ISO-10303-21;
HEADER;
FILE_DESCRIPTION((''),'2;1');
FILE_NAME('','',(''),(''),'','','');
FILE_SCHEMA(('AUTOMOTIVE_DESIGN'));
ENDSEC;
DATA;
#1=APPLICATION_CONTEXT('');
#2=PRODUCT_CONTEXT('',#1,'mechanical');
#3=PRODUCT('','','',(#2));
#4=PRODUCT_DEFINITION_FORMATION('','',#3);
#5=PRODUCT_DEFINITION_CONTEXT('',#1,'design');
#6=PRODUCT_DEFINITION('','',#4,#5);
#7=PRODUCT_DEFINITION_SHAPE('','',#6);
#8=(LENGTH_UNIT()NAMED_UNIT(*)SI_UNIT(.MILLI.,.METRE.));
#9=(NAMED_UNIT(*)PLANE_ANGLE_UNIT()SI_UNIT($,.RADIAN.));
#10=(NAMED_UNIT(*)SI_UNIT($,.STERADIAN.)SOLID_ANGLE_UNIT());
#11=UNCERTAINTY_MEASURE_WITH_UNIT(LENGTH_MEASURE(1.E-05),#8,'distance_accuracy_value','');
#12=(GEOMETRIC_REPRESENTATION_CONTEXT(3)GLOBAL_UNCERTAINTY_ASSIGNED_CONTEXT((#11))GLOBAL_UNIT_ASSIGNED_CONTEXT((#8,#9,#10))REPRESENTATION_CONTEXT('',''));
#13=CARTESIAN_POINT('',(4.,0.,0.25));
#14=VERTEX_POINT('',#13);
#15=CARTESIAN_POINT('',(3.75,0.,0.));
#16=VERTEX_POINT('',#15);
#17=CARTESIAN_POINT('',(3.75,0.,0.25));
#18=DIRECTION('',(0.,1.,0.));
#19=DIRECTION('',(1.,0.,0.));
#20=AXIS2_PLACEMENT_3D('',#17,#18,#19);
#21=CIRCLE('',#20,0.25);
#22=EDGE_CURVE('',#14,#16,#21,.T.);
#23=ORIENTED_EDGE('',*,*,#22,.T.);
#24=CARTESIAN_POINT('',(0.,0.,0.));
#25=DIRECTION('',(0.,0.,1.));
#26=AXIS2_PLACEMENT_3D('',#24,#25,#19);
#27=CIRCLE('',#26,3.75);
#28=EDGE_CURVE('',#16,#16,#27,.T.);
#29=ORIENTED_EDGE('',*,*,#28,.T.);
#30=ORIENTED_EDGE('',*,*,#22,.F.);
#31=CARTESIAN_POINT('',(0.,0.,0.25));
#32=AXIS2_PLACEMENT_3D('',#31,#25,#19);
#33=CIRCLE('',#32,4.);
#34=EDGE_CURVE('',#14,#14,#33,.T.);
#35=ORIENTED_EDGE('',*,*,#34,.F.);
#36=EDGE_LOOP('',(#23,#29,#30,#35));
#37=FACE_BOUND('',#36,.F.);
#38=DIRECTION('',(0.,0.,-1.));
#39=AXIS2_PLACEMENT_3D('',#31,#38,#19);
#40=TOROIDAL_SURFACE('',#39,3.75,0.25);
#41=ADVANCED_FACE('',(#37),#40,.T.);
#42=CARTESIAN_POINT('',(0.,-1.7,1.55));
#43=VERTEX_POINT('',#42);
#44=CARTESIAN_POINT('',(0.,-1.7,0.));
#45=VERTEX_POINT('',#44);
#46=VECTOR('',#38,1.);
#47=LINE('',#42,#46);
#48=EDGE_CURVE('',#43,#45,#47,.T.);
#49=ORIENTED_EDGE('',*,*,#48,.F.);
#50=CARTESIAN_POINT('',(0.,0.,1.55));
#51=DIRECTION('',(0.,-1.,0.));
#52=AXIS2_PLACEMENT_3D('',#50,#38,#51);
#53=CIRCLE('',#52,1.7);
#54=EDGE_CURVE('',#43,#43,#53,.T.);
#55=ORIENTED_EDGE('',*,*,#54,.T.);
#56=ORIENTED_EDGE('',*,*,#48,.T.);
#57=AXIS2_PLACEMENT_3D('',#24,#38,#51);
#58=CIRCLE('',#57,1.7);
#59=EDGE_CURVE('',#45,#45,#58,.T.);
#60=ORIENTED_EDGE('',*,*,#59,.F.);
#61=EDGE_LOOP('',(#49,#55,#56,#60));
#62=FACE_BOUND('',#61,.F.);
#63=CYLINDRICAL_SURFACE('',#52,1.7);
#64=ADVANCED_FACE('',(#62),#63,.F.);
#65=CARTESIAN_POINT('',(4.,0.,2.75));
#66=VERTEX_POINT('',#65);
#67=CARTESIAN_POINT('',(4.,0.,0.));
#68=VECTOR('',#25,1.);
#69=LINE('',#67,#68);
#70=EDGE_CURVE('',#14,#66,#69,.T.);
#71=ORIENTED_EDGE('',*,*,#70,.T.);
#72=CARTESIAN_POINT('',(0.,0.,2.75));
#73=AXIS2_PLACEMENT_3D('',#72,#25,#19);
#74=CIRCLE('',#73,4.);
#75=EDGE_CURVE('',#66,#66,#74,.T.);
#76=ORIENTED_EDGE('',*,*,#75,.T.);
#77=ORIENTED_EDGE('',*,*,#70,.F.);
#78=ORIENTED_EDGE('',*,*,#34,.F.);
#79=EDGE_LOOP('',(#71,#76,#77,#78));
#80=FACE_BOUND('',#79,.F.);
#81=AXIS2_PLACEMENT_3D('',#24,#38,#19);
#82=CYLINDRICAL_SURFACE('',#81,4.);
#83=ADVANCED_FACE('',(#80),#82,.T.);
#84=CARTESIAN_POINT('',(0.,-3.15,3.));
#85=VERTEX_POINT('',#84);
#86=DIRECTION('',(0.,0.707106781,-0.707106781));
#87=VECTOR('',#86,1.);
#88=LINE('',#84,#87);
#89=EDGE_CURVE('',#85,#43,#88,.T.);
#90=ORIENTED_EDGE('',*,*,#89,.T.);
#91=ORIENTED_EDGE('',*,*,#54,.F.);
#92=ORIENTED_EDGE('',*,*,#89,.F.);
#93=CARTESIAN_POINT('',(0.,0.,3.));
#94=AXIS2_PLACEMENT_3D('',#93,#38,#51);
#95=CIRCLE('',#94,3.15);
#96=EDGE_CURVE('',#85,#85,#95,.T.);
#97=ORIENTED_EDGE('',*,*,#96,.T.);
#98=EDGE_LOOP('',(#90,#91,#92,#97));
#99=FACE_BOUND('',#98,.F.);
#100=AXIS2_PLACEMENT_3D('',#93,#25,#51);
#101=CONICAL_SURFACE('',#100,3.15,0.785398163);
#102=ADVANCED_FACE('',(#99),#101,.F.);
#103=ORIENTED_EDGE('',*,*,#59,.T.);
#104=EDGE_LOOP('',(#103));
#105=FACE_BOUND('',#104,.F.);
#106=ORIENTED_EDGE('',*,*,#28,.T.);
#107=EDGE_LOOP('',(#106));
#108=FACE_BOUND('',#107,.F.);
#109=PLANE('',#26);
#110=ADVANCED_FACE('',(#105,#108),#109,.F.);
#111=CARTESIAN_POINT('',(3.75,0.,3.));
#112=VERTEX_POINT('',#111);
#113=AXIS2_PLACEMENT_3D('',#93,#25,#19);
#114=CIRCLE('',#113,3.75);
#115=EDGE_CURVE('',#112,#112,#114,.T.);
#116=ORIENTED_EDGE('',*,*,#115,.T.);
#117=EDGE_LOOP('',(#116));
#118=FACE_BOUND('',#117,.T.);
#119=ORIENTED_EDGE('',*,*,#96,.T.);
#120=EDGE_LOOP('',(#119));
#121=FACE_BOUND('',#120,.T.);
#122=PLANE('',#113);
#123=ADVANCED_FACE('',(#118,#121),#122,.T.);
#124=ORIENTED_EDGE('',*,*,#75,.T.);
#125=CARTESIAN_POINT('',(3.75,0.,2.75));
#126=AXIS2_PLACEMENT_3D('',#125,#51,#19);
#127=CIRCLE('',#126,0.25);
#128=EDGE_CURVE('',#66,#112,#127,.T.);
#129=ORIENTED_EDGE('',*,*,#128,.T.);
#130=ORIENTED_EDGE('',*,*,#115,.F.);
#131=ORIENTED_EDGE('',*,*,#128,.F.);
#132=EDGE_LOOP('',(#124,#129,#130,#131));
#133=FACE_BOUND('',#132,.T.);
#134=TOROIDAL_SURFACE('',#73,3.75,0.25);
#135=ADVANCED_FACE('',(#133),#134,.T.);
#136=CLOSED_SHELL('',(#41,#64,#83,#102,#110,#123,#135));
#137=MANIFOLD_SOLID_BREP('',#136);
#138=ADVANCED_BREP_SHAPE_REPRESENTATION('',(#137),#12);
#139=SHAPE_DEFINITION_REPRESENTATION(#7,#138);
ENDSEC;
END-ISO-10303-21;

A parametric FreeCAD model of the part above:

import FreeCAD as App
import Part
import Sketcher
Q = App.Units.Quantity


def edges_at(feature, points):
    """Names of the edges that pass closest to the given points."""
    edges = feature.Shape.Edges
    near = lambda p: min(range(len(edges)), key=lambda i: edges[i].distToShape(Part.Vertex(*p))[0])
    return sorted({f"Edge{near(p) + 1}" for p in points})

doc = App.newDocument("Part")
params = doc.addObject("Spreadsheet::Sheet", "Params")
for row, (alias, value) in enumerate([
    ("sketch1_diameter", "8 mm"),
    ("pad1_length", "3 mm"),
    ("sketch2_diameter", "3.4 mm"),
    ("hole_diameter", "3.4 mm"),
    ("hole_depth", "8 mm"),
    ("hole_csink_diameter", "6.3 mm"),
    ("fillet_radius", "0.25 mm"),
], start=1):
    params.set(f"A{row}", alias)
    params.set(f"B{row}", "=" + value)
    params.setAlias(f"B{row}", alias)

body = doc.addObject("PartDesign::Body", "Body")

# Sketch on XY plane
sketch1 = doc.addObject("Sketcher::SketchObject", "Sketch")
body.addObject(sketch1)
sketch1.AttachmentSupport = (doc.XY_Plane, [""])
sketch1.MapMode = "FlatFace"
sketch1.addGeometry(Part.Circle(App.Vector(0, 0, 0), App.Vector(0, 0, 1), 4), False)
sketch1.addConstraint(Sketcher.Constraint("Coincident", 0, 3, -1, 1))
sketch1.addConstraint(Sketcher.Constraint("Diameter", 0, Q("8 mm")))
sketch1.setExpression("Constraints[1]", "Params.sketch1_diameter")
pad1 = doc.addObject("PartDesign::Pad", "Pad")
body.addObject(pad1)
pad1.Profile = sketch1
pad1.setExpression("Length", "Params.pad1_length")

# Sketch on XY plane
sketch2 = doc.addObject("Sketcher::SketchObject", "Sketch001")
body.addObject(sketch2)
sketch2.AttachmentSupport = (doc.XY_Plane, [""])
sketch2.MapMode = "FlatFace"
sketch2.AttachmentOffset = App.Placement(App.Vector(0, 0, 3), App.Rotation())
sketch2.addGeometry(Part.Circle(App.Vector(0, 0, 0), App.Vector(0, 0, 1), 1.7), False)
sketch2.addConstraint(Sketcher.Constraint("Coincident", 0, 3, -1, 1))
sketch2.addConstraint(Sketcher.Constraint("Diameter", 0, Q("3.4 mm")))
sketch2.setExpression("Constraints[1]", "Params.sketch2_diameter")
doc.recompute()
hole = doc.addObject("PartDesign::Hole", "Hole")
body.addObject(hole)
hole.Profile = sketch2
hole.ThreadType = "None"
hole.setExpression("Diameter", "Params.hole_diameter")
hole.DepthType = "Dimension"
hole.setExpression("Depth", "Params.hole_depth")
hole.DrillPoint = "Angled"
hole.DrillPointAngle = 118
hole.HoleCutType = "Countersink"
hole.setExpression("HoleCutDiameter", "Params.hole_csink_diameter")
hole.HoleCutCountersinkAngle = 90
doc.recompute()

fillet = doc.addObject("PartDesign::Fillet", "Fillet")
body.addObject(fillet)
fillet.Base = (hole, edges_at(hole, [(-3.729, -1.446, 0), (-3.729, -1.446, 3)]))
fillet.setExpression("Radius", "Params.fillet_radius")

doc.recompute()
